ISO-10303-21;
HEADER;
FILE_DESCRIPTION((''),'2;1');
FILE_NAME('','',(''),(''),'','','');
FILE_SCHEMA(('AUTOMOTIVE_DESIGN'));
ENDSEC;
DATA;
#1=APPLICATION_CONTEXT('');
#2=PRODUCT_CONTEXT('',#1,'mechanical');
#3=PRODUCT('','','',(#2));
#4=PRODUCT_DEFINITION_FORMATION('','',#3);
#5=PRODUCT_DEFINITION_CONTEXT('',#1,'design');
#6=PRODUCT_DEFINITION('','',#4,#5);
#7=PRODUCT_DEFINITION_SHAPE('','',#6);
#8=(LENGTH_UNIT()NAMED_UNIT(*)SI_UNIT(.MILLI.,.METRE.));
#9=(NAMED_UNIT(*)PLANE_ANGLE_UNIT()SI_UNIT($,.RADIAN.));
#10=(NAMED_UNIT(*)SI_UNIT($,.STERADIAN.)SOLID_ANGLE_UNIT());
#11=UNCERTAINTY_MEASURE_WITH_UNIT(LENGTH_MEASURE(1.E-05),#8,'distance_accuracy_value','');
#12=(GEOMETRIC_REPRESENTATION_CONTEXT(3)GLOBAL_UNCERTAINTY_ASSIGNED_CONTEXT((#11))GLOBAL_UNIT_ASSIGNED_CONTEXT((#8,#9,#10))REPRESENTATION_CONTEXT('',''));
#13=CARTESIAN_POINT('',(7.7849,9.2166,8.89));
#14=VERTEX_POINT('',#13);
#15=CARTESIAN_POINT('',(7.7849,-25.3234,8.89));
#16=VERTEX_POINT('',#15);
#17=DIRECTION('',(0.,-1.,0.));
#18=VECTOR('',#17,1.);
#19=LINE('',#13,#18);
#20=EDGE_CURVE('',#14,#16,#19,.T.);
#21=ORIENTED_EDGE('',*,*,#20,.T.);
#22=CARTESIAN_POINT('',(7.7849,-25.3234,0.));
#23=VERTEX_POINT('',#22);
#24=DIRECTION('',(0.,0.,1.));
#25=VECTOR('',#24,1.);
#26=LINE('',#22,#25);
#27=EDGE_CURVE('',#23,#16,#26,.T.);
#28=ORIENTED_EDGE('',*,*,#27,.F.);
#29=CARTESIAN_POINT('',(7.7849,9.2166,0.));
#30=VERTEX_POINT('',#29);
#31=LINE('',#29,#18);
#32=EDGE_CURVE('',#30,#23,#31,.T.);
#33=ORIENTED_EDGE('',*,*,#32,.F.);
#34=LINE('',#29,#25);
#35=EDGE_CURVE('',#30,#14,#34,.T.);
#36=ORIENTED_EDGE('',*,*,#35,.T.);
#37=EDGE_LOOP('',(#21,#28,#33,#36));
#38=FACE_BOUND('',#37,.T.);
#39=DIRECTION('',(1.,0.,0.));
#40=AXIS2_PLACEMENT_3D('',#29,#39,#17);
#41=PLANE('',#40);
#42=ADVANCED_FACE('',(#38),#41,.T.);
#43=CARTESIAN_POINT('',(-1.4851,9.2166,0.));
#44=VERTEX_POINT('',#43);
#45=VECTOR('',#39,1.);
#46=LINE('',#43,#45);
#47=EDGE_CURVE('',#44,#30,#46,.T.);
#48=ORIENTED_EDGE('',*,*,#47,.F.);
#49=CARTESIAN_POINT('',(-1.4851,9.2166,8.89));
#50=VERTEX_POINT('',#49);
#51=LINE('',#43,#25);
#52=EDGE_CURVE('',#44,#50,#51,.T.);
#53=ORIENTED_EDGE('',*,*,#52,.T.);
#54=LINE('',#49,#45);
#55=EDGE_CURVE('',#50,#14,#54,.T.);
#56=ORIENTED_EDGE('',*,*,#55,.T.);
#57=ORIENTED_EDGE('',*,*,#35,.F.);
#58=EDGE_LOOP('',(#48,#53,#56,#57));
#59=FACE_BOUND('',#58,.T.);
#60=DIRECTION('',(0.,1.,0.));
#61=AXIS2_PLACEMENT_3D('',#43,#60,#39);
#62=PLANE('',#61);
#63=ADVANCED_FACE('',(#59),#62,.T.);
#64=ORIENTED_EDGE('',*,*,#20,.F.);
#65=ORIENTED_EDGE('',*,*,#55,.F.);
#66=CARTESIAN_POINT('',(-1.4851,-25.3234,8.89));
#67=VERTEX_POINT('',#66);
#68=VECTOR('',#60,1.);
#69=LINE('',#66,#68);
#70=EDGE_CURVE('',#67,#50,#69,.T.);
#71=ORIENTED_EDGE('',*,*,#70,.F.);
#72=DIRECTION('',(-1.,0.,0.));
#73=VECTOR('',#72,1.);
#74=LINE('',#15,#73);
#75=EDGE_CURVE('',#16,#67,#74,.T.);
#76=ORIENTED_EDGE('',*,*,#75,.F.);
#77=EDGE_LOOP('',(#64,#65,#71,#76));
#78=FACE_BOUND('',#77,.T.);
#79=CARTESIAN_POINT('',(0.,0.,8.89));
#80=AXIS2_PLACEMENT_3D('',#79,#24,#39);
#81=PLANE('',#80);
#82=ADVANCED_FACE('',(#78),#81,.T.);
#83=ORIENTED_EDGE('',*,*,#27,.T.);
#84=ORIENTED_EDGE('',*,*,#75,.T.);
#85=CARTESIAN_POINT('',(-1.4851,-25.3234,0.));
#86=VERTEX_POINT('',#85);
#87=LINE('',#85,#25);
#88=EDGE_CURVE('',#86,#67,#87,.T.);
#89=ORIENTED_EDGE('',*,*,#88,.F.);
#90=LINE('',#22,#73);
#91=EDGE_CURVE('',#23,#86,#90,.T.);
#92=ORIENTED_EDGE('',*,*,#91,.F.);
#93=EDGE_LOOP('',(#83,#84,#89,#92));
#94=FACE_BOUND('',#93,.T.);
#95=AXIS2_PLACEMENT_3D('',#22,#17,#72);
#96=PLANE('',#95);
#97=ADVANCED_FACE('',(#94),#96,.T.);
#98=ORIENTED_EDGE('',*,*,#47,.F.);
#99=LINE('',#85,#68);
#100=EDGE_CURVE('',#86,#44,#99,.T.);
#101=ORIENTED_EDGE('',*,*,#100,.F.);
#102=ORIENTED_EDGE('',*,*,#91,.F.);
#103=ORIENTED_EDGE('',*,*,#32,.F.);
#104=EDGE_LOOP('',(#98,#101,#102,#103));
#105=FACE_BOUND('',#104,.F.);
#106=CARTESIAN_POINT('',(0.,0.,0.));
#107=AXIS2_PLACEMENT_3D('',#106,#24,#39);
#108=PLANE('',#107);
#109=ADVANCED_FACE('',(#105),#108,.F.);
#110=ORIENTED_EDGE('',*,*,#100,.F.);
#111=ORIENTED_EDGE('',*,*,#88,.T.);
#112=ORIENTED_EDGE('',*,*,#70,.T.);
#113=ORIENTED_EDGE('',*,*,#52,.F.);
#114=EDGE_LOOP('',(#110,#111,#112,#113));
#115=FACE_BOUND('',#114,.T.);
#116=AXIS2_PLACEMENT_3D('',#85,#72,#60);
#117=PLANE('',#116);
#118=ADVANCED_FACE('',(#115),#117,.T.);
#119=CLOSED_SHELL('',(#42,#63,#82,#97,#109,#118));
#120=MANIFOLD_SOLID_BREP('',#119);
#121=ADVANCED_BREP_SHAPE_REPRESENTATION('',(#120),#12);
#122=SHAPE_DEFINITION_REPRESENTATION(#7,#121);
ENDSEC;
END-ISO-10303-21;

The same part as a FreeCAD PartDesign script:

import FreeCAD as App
import Part
import Sketcher
from FreeCAD import Vector
Q = App.Units.Quantity

doc = App.newDocument("Part")
body = doc.addObject("PartDesign::Body", "Body")

sketch1 = body.newObject("Sketcher::SketchObject", "Sketch")
sketch1.AttachmentSupport = (doc.getObject("XY_Plane"), [""])
sketch1.MapMode = "FlatFace"
sketch1.addGeometry([
    Part.LineSegment(Vector(-1, -25, 0), Vector(8, -25, 0)),
    Part.LineSegment(Vector(8, -25, 0), Vector(8, 9, 0)),
    Part.LineSegment(Vector(8, 9, 0), Vector(-1, 9, 0)),
    Part.LineSegment(Vector(-1, 9, 0), Vector(-1, -25, 0)),
], False)
sketch1.addConstraint([
    Sketcher.Constraint("Coincident", 0, 2, 1, 1),
    Sketcher.Constraint("Coincident", 1, 2, 2, 1),
    Sketcher.Constraint("Coincident", 2, 2, 3, 1),
    Sketcher.Constraint("Coincident", 3, 2, 0, 1),
    Sketcher.Constraint("Horizontal", 0),
    Sketcher.Constraint("Vertical", 1),
    Sketcher.Constraint("Horizontal", 2),
    Sketcher.Constraint("Vertical", 3),
    Sketcher.Constraint("DistanceX", 0, 1, 0, 2, Q("9.27 mm")),
    Sketcher.Constraint("DistanceY", 1, 1, 1, 2, Q("34.54 mm")),
    Sketcher.Constraint("DistanceX", -1, 1, 0, 2, Q("0.3065 in")),
    Sketcher.Constraint("DistanceY", 0, 2, -1, 1, Q("25.3234 mm")),
])
pad1 = body.newObject("PartDesign::Pad", "Pad")
pad1.Profile = sketch1
pad1.Length = Q("0.35 in")

doc.recompute()
